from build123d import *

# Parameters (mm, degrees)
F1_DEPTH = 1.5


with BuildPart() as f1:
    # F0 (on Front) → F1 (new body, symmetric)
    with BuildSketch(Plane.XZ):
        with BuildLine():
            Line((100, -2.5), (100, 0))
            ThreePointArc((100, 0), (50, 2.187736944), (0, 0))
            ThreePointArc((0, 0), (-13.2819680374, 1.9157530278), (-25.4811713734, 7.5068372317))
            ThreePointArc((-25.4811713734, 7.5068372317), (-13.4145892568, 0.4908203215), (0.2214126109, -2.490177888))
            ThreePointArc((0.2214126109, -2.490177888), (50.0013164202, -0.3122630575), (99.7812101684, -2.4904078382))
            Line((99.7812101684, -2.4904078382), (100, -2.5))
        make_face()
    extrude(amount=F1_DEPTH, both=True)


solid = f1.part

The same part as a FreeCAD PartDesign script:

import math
import FreeCAD as App
import Part
import Sketcher

doc = App.newDocument("Part")
body = doc.addObject("PartDesign::Body", "Body")

# Sketch on XZ plane
sketch1 = doc.addObject("Sketcher::SketchObject", "Sketch")
body.addObject(sketch1)
sketch1.AttachmentSupport = (doc.XZ_Plane, [""])
sketch1.MapMode = "FlatFace"
sketch1.addGeometry([
    Part.LineSegment(App.Vector(100, -2.5, 0), App.Vector(100, 0, 0)),  # 0
    Part.ArcOfCircle(Part.Circle(App.Vector(50, -570.27, 0), App.Vector(0, 0, 1), 572.46), math.radians(84.99), math.radians(95.01)),  # 1
    Part.ArcOfCircle(Part.Circle(App.Vector(0, 47, 0), App.Vector(0, 0, 1), 47), math.radians(-123), math.radians(-90)),  # 2
    Part.ArcOfCircle(Part.Circle(App.Vector(2.9, 42.43, 0), App.Vector(0, 0, 1), 45), math.radians(-129), math.radians(-93)),  # 3
    Part.ArcOfCircle(Part.Circle(App.Vector(50, -570.27, 0), App.Vector(0, 0, 1), 569.96), math.radians(84.99), math.radians(95.01)),  # 4
    Part.LineSegment(App.Vector(99.78, -2.49, 0), App.Vector(100, -2.5, 0)),  # 5
], False)
sketch1.addConstraint([
    Sketcher.Constraint("Coincident", 0, 2, 1, 1),
    Sketcher.Constraint("Coincident", 1, 2, 2, 2),
    Sketcher.Constraint("Coincident", 2, 1, 3, 1),
    Sketcher.Constraint("Coincident", 3, 2, 4, 2),
    Sketcher.Constraint("Coincident", 4, 1, 5, 1),
    Sketcher.Constraint("Coincident", 5, 2, 0, 1),
    Sketcher.Constraint("Vertical", 0),
    Sketcher.Constraint("Coincident", 1, 2, -1, 1),
    Sketcher.Constraint("Coincident", 4, 3, 1, 3),
    Sketcher.Constraint("PointOnObject", 2, 3, -2),
    Sketcher.Constraint("PointOnObject", 0, 2, -1),
    Sketcher.Constraint("Radius", 2, 47.0),
    Sketcher.Constraint("Radius", 3, 45.0),
    Sketcher.Constraint("DistanceY", 0, 1, 0, 2, 2.5),
    Sketcher.Constraint("DistanceX", -1, 1, 1, 3, 50.0),
    Sketcher.Constraint("Radius", 1, 572.460551),
    Sketcher.Constraint("Radius", 4, 569.960551),
    Sketcher.Constraint("Distance", 5, 0.219),
    Sketcher.Constraint("DistanceX", 3, 2, 3, 3, 2.676299),
    Sketcher.Constraint("DistanceX", -1, 1, 3, 3, 2.897712),
])
pad1 = doc.addObject("PartDesign::Pad", "Pad")
body.addObject(pad1)
pad1.Profile = sketch1
pad1.Length = 3
pad1.Midplane = True

doc.recompute()
